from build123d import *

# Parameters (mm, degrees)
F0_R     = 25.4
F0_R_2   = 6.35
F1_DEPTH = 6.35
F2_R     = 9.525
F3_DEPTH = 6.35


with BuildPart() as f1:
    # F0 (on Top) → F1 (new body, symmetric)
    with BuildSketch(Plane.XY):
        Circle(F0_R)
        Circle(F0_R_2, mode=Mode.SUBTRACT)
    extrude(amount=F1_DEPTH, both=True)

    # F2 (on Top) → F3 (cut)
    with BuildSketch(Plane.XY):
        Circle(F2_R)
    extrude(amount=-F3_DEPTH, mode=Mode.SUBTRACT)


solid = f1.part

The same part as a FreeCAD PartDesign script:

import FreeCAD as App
import Part
import Sketcher

V = App.Vector
Q = App.Units.Quantity

doc = App.newDocument("Part")
body = doc.addObject("PartDesign::Body", "Body")

sketch1 = body.newObject("Sketcher::SketchObject", "Sketch")
sketch1.AttachmentSupport = (doc.getObject("XY_Plane"), [""])
sketch1.MapMode = "FlatFace"
sketch1.addGeometry([
    Part.Circle(V(0, 0, 0), V(0, 0, 1), 25),
    Part.Circle(V(0, 0, 0), V(0, 0, 1), 6),
], False)
sketch1.addConstraint([
    Sketcher.Constraint("Coincident", 0, 3, -1, 1),
    Sketcher.Constraint("Coincident", 1, 3, -1, 1),
    Sketcher.Constraint("Diameter", 0, Q("2 in")),
    Sketcher.Constraint("Diameter", 1, Q("0.5 in")),
])
pad1 = body.newObject("PartDesign::Pad", "Pad")
pad1.Profile = sketch1
pad1.Length = Q("0.5 in")
pad1.Midplane = True

sketch2 = body.newObject("Sketcher::SketchObject", "Sketch001")
sketch2.AttachmentSupport = (doc.getObject("XY_Plane"), [""])
sketch2.MapMode = "FlatFace"
sketch2.addGeometry(Part.Circle(V(0, 0, 0), V(0, 0, 1), 10), False)
sketch2.addConstraint([
    Sketcher.Constraint("Coincident", 0, 3, -1, 1),
    Sketcher.Constraint("Diameter", 0, Q("0.75 in")),
])
pocket1 = body.newObject("PartDesign::Pocket", "Pocket")
pocket1.Profile = sketch2
pocket1.Length = Q("0.25 in")

doc.recompute()
